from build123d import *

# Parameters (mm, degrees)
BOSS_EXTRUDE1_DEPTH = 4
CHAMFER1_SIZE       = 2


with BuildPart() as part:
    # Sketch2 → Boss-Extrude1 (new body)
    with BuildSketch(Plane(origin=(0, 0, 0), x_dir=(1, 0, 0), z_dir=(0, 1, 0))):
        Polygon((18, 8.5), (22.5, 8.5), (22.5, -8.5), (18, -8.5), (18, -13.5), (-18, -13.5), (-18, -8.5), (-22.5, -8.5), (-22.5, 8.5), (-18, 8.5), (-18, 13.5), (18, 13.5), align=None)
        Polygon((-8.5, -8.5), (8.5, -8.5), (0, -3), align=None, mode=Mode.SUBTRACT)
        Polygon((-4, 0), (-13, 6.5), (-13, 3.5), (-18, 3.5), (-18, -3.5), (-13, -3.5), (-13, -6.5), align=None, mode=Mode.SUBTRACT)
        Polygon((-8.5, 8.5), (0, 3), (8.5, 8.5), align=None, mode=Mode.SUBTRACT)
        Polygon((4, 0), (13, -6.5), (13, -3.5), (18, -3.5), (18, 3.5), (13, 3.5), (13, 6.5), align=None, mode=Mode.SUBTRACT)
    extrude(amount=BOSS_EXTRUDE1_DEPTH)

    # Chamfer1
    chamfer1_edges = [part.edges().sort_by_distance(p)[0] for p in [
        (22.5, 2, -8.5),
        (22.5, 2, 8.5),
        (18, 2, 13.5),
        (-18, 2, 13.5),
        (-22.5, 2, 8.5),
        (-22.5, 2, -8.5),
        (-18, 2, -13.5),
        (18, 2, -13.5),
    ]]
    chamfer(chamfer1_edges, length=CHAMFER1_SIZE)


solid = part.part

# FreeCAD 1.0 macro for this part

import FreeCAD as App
import Part
import Sketcher
from FreeCAD import Vector
Q = App.Units.Quantity


def edges_at(feature, points):
    """Names of the edges that pass closest to the given points."""
    edges = feature.Shape.Edges
    near = lambda p: min(range(len(edges)), key=lambda i: edges[i].distToShape(Part.Vertex(*p))[0])
    return sorted({f"Edge{near(p) + 1}" for p in points})


def add_polygon(sketch, points):
    """Adds a closed chain of lines whose ends are joined by coincident constraints."""
    first, n = sketch.GeometryCount, len(points)
    for a, b in zip(points, points[1:] + points[:1]):
        sketch.addGeometry(Part.LineSegment(App.Vector(*a, 0), App.Vector(*b, 0)), False)
    for i in range(n):
        sketch.addConstraint(Sketcher.Constraint("Coincident", first + i, 2, first + (i + 1) % n, 1))

doc = App.newDocument("Part")
body = doc.addObject("PartDesign::Body", "Body")

sketch1 = body.newObject("Sketcher::SketchObject", "Sketch")
sketch1.AttachmentSupport = (doc.getObject("XZ_Plane"), [""])
sketch1.MapMode = "FlatFace"
add_polygon(sketch1, [(22.5, -8.5), (18, -8.5), (18, -13.5), (-18, -13.5), (-18, -8.5), (-22.5, -8.5), (-22.5, 8.5), (-18, 8.5), (-18, 13.5), (18, 13.5), (18, 8.5), (22.5, 8.5)])
add_polygon(sketch1, [(-8.5, 8.5), (0, 3), (8.5, 8.5)])
add_polygon(sketch1, [(4, 0), (13, -6.5), (13, -3.5), (18, -3.5), (18, 3.5), (13, 3.5), (13, 6.5)])
add_polygon(sketch1, [(-4, 0), (-13, 6.5), (-13, 3.5), (-18, 3.5), (-18, -3.5), (-13, -3.5), (-13, -6.5)])
add_polygon(sketch1, [(-8.5, -8.5), (8.5, -8.5), (0, -3)])
sketch1.addConstraint(Sketcher.Constraint("Horizontal", 0))
sketch1.addConstraint(Sketcher.Constraint("Vertical", 1))
sketch1.addConstraint(Sketcher.Constraint("Horizontal", 2))
sketch1.addConstraint(Sketcher.Constraint("Vertical", 3))
sketch1.addConstraint(Sketcher.Constraint("Horizontal", 4))
sketch1.addConstraint(Sketcher.Constraint("Vertical", 5))
sketch1.addConstraint(Sketcher.Constraint("Horizontal", 6))
sketch1.addConstraint(Sketcher.Constraint("Vertical", 7))
sketch1.addConstraint(Sketcher.Constraint("Horizontal", 8))
sketch1.addConstraint(Sketcher.Constraint("Vertical", 9))
sketch1.addConstraint(Sketcher.Constraint("Horizontal", 10))
sketch1.addConstraint(Sketcher.Constraint("Vertical", 11))
sketch1.addConstraint(Sketcher.Constraint("Horizontal", 14))
sketch1.addConstraint(Sketcher.Constraint("Vertical", 16))
sketch1.addConstraint(Sketcher.Constraint("Horizontal", 17))
sketch1.addConstraint(Sketcher.Constraint("Vertical", 18))
sketch1.addConstraint(Sketcher.Constraint("Horizontal", 19))
sketch1.addConstraint(Sketcher.Constraint("Vertical", 20))
sketch1.addConstraint(Sketcher.Constraint("Vertical", 23))
sketch1.addConstraint(Sketcher.Constraint("Horizontal", 24))
sketch1.addConstraint(Sketcher.Constraint("Vertical", 25))
sketch1.addConstraint(Sketcher.Constraint("Horizontal", 26))
sketch1.addConstraint(Sketcher.Constraint("Vertical", 27))
sketch1.addConstraint(Sketcher.Constraint("Horizontal", 29))
sketch1.addConstraint(Sketcher.Constraint("Symmetric", 0, 2, 6, 2, -1, 1))
sketch1.addConstraint(Sketcher.Constraint("Symmetric", 2, 2, 8, 2, -1, 1))
sketch1.addConstraint(Sketcher.Constraint("Symmetric", 4, 2, 10, 2, -1, 1))
sketch1.addConstraint(Sketcher.Constraint("Symmetric", 15, 2, 22, 2, -1, 1))
sketch1.addConstraint(Sketcher.Constraint("Symmetric", 17, 2, 24, 2, -1, 1))
sketch1.addConstraint(Sketcher.Constraint("Symmetric", 19, 2, 26, 2, -1, 1))
sketch1.addConstraint(Sketcher.Constraint("Symmetric", 21, 2, 28, 2, -1, 1))
sketch1.addConstraint(Sketcher.Constraint("Symmetric", 14, 2, 29, 2, -1, 1))
sketch1.addConstraint(Sketcher.Constraint("Symmetric", 12, 2, 30, 2, -1, 1))
sketch1.addConstraint(Sketcher.Constraint("Symmetric", 0, 2, 3, 2, -2))
sketch1.addConstraint(Sketcher.Constraint("Symmetric", 20, 2, 22, 2, -2))
sketch1.addConstraint(Sketcher.Constraint("PointOnObject", 12, 2, -2))
sketch1.addConstraint(Sketcher.Constraint("PointOnObject", 21, 2, -1))
sketch1.addConstraint(Sketcher.Constraint("Parallel", 21, 28))
sketch1.addConstraint(Sketcher.Constraint("Parallel", 13, 31))
sketch1.addConstraint(Sketcher.Constraint("Horizontal", 10, 2, 13, 2))
sketch1.addConstraint(Sketcher.Constraint("Horizontal", 19, 2, 23, 2))
sketch1.addConstraint(Sketcher.Constraint("Vertical", 9, 2, 17, 2))
sketch1.addConstraint(Sketcher.Constraint("Vertical", 13, 2, 29, 2))
sketch1.addConstraint(Sketcher.Constraint("Equal", 26, 1))
sketch1.addConstraint(Sketcher.Constraint("Equal", 29, 5))
sketch1.addConstraint(Sketcher.Constraint("DistanceX", 2, 2, 2, 1, Q("36 mm")))
sketch1.addConstraint(Sketcher.Constraint("DistanceX", 14, 2, 14, 1, Q("17 mm")))
sketch1.addConstraint(Sketcher.Constraint("DistanceX", 17, 1, 17, 2, Q("5 mm")))
sketch1.addConstraint(Sketcher.Constraint("DistanceY", 16, 1, 16, 2, Q("3 mm")))
sketch1.addConstraint(Sketcher.Constraint("DistanceY", 18, 1, 18, 2, Q("7 mm")))
sketch1.addConstraint(Sketcher.Constraint("DistanceX", 0, 2, 0, 1, Q("4.5 mm")))
sketch1.addConstraint(Sketcher.Constraint("DistanceY", -1, 1, 12, 2, Q("3 mm")))
sketch1.addConstraint(Sketcher.Constraint("DistanceX", -1, 1, 21, 2, Q("4 mm")))
pad1 = body.newObject("PartDesign::Pad", "Pad")
pad1.Profile = sketch1
pad1.Length = 4
pad1.Reversed = True
doc.recompute()

chamfer = body.newObject("PartDesign::Chamfer", "Chamfer")
chamfer.Base = (pad1, edges_at(pad1, [
    (22.5, 2, -8.5),
    (22.5, 2, 8.5),
    (18, 2, 13.5),
    (-18, 2, 13.5),
    (-22.5, 2, 8.5),
    (-22.5, 2, -8.5),
    (-18, 2, -13.5),
    (18, 2, -13.5),
]))
chamfer.Size = 2

doc.recompute()
